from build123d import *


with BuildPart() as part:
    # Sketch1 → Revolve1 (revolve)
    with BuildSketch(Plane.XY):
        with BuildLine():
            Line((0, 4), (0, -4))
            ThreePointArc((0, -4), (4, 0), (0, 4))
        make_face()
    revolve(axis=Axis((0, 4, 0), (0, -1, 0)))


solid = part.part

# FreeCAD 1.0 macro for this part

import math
import FreeCAD as App
import Part
import Sketcher

V = App.Vector

doc = App.newDocument("Part")
body = doc.addObject("PartDesign::Body", "Body")

# Sketch on XY plane
sketch1 = body.newObject("Sketcher::SketchObject", "Sketch")
sketch1.AttachmentSupport = (doc.getObject("XY_Plane"), [""])
sketch1.MapMode = "FlatFace"
sketch1.addGeometry(Part.LineSegment(V(0, 4, 0), V(0, -4, 0)), False)
sketch1.addGeometry(Part.ArcOfCircle(Part.Circle(V(0, 0, 0), V(0, 0, 1), 4), math.radians(-90), math.radians(90)), False)
sketch1.addConstraint(Sketcher.Constraint("Coincident", 0, 1, 1, 2))
sketch1.addConstraint(Sketcher.Constraint("Coincident", 1, 1, 0, 2))
sketch1.addConstraint(Sketcher.Constraint("Vertical", 0))
sketch1.addConstraint(Sketcher.Constraint("Coincident", 1, 3, -1, 1))
sketch1.addConstraint(Sketcher.Constraint("PointOnObject", 0, 1, -2))
sketch1.addConstraint(Sketcher.Constraint("Radius", 1, 4.0))
revolution = body.newObject("PartDesign::Revolution", "Revolution")
revolution.Profile = sketch1
revolution.ReferenceAxis = (sketch1, ["V_Axis"])
revolution.Angle = 360

doc.recompute()
